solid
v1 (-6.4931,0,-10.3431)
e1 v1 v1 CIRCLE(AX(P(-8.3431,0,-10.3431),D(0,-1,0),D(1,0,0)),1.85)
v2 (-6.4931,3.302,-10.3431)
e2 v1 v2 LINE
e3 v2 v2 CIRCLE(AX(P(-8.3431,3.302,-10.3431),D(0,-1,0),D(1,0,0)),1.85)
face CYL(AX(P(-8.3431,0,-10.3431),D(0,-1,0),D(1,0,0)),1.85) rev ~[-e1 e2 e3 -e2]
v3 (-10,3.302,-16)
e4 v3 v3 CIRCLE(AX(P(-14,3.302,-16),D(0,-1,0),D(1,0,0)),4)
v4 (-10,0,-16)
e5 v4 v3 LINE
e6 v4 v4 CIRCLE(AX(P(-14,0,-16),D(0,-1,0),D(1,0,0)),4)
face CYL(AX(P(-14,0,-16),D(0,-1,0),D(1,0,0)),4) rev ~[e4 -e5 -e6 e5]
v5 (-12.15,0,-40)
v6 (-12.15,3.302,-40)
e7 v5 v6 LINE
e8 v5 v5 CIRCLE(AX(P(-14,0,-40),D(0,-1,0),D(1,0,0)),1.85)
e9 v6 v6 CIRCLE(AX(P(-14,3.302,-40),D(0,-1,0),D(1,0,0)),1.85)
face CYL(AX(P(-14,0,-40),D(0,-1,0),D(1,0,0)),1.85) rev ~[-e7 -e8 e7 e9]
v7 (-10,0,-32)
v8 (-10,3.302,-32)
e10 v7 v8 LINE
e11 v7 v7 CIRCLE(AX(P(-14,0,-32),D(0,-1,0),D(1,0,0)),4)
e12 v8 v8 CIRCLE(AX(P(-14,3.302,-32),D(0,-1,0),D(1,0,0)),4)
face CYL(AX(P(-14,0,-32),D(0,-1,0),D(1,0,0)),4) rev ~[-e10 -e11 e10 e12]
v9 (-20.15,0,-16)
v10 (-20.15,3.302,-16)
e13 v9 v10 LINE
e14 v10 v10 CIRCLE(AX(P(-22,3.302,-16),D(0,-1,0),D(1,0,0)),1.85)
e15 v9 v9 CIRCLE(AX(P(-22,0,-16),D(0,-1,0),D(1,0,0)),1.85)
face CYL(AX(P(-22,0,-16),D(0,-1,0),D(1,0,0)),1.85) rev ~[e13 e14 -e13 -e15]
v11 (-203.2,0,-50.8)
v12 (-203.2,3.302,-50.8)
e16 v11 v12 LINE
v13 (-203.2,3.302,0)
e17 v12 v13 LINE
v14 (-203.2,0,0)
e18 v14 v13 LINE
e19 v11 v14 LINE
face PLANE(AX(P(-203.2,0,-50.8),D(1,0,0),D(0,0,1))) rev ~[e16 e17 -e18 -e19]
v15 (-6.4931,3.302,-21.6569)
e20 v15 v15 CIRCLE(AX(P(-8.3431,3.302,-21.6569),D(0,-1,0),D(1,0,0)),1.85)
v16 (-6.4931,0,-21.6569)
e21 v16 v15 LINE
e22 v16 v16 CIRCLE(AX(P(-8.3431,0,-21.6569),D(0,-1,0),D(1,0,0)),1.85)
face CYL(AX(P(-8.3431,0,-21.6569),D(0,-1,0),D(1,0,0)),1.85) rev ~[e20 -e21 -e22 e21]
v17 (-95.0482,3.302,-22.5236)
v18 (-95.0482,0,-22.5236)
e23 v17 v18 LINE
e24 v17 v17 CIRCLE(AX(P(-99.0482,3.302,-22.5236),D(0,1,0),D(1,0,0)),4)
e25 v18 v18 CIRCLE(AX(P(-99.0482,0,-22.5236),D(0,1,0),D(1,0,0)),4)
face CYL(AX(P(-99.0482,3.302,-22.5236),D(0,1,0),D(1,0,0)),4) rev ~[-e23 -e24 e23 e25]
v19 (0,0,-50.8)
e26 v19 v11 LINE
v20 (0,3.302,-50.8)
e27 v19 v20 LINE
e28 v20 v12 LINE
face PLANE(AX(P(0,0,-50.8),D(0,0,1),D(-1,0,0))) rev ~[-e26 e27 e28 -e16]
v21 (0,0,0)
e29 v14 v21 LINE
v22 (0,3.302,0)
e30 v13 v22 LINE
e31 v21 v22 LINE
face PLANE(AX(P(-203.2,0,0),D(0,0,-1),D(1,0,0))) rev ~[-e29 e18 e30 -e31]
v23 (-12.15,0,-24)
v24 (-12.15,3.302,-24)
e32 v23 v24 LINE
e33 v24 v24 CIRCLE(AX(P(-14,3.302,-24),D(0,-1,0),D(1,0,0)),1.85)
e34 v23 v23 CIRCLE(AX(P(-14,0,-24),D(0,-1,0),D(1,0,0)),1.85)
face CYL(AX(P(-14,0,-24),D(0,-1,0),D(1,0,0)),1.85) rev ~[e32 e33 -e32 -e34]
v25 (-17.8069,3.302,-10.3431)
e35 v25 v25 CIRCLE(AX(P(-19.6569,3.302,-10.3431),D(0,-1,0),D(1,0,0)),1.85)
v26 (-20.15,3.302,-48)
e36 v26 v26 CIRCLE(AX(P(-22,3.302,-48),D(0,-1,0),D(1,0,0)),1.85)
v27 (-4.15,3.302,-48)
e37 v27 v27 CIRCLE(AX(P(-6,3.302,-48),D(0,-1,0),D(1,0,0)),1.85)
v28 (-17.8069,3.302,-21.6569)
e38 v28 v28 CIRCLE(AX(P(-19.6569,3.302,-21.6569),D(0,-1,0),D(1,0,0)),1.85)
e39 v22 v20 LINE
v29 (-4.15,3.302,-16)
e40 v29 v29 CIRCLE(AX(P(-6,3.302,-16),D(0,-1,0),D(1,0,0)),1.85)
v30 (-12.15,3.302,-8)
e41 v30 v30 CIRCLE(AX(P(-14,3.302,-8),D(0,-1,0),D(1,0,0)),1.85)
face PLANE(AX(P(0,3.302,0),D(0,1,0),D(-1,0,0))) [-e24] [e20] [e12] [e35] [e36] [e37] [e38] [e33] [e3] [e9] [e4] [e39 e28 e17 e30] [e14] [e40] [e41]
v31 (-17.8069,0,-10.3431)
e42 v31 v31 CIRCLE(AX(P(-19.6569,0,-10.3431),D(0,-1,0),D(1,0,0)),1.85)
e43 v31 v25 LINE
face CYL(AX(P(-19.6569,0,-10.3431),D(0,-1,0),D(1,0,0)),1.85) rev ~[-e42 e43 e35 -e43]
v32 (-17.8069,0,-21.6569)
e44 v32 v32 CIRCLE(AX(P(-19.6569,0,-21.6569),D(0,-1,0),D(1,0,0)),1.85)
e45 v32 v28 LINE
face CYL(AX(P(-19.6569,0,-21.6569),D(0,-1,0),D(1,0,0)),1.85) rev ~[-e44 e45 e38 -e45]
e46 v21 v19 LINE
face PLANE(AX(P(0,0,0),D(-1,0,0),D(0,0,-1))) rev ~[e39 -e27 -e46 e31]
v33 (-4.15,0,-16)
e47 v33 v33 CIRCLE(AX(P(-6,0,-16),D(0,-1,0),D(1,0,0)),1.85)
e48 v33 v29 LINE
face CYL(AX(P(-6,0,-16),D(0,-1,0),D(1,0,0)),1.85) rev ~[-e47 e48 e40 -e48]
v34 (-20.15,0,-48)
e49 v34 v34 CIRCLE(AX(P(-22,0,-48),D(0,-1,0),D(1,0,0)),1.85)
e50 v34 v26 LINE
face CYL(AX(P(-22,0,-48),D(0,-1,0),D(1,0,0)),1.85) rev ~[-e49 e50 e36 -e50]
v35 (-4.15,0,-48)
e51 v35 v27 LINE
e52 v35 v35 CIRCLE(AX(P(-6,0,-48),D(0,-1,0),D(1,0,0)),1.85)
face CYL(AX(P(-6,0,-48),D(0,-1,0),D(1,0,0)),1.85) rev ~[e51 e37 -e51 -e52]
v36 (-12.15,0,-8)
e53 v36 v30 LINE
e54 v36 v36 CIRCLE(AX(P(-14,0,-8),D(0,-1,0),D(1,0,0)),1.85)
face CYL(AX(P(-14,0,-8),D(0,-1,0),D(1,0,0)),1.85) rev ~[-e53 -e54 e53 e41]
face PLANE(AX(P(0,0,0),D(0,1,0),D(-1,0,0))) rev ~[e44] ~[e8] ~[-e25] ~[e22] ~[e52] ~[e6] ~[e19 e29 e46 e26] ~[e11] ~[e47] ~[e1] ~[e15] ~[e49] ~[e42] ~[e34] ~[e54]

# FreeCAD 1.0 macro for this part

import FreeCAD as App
import Part
import Sketcher
from FreeCAD import Vector
Q = App.Units.Quantity


def add_polygon(sketch, points):
    """Adds a closed chain of lines whose ends are joined by coincident constraints."""
    first, n = sketch.GeometryCount, len(points)
    for a, b in zip(points, points[1:] + points[:1]):
        sketch.addGeometry(Part.LineSegment(App.Vector(*a, 0), App.Vector(*b, 0)), False)
    for i in range(n):
        sketch.addConstraint(Sketcher.Constraint("Coincident", first + i, 2, first + (i + 1) % n, 1))

doc = App.newDocument("Part")
body = doc.addObject("PartDesign::Body", "Body")

# Sketch on XZ plane
sketch1 = doc.addObject("Sketcher::SketchObject", "Sketch")
body.addObject(sketch1)
sketch1.AttachmentSupport = (doc.XZ_Plane, [""])
sketch1.MapMode = "FlatFace"
add_polygon(sketch1, [(-203, 0), (0, 0), (0, -51), (-203, -51)])  # lines 0-3
sketch1.addConstraint(Sketcher.Constraint("Horizontal", 0))
sketch1.addConstraint(Sketcher.Constraint("Vertical", 1))
sketch1.addConstraint(Sketcher.Constraint("Horizontal", 2))
sketch1.addConstraint(Sketcher.Constraint("Vertical", 3))
sketch1.addConstraint(Sketcher.Constraint("Coincident", 0, 2, -1, 1))
sketch1.addConstraint(Sketcher.Constraint("DistanceX", 0, 1, 0, 2, Q("8 in")))
sketch1.addConstraint(Sketcher.Constraint("DistanceY", 1, 2, 1, 1, Q("2 in")))
pad1 = doc.addObject("PartDesign::Pad", "Pad")
body.addObject(pad1)
pad1.Profile = sketch1
pad1.Length = Q("0.13 in")
pad1.Reversed = True

# Sketch on XZ plane
sketch2 = doc.addObject("Sketcher::SketchObject", "Sketch001")
body.addObject(sketch2)
sketch2.AttachmentSupport = (doc.XZ_Plane, [""])
sketch2.MapMode = "FlatFace"
sketch2.addGeometry(Part.Circle(Vector(-14, -16, 0), Vector(0, 0, 1), 4), False)
sketch2.addGeometry(Part.Circle(Vector(-22, -16, 0), Vector(0, 0, 1), 1.9), False)
sketch2.addGeometry(Part.Circle(Vector(-6, -16, 0), Vector(0, 0, 1), 1.9), False)
sketch2.addGeometry(Part.Circle(Vector(-14, -24, 0), Vector(0, 0, 1), 1.9), False)
sketch2.addGeometry(Part.Circle(Vector(-14, -8, 0), Vector(0, 0, 1), 1.9), False)
sketch2.addGeometry(Part.Circle(Vector(-19.7, -21.7, 0), Vector(0, 0, 1), 1.9), False)
sketch2.addGeometry(Part.Circle(Vector(-19.7, -10.3, 0), Vector(0, 0, 1), 1.9), False)
sketch2.addGeometry(Part.Circle(Vector(-8.3, -10.3, 0), Vector(0, 0, 1), 1.9), False)
sketch2.addGeometry(Part.Circle(Vector(-8.3, -21.7, 0), Vector(0, 0, 1), 1.9), False)
sketch2.addGeometry(Part.Circle(Vector(-22, -48, 0), Vector(0, 0, 1), 1.9), False)
sketch2.addGeometry(Part.Circle(Vector(-6, -48, 0), Vector(0, 0, 1), 1.9), False)
sketch2.addGeometry(Part.Circle(Vector(-14, -40, 0), Vector(0, 0, 1), 1.9), False)
sketch2.addGeometry(Part.Circle(Vector(-14, -32, 0), Vector(0, 0, 1), 4), False)
sketch2.addConstraint(Sketcher.Constraint("Equal", 1, 2))
sketch2.addConstraint(Sketcher.Constraint("Equal", 2, 3))
sketch2.addConstraint(Sketcher.Constraint("Equal", 3, 4))
sketch2.addConstraint(Sketcher.Constraint("Equal", 4, 5))
sketch2.addConstraint(Sketcher.Constraint("Equal", 5, 6))
sketch2.addConstraint(Sketcher.Constraint("Equal", 6, 7))
sketch2.addConstraint(Sketcher.Constraint("Equal", 7, 8))
sketch2.addConstraint(Sketcher.Constraint("Equal", 8, 9))
sketch2.addConstraint(Sketcher.Constraint("Equal", 9, 10))
sketch2.addConstraint(Sketcher.Constraint("Equal", 10, 11))
sketch2.addConstraint(Sketcher.Constraint("Equal", 0, 12))
sketch2.addConstraint(Sketcher.Constraint("Horizontal", 0, 3, 1, 3))
sketch2.addConstraint(Sketcher.Constraint("Horizontal", 1, 3, 2, 3))
sketch2.addConstraint(Sketcher.Constraint("Horizontal", 6, 3, 7, 3))
sketch2.addConstraint(Sketcher.Constraint("Horizontal", 5, 3, 8, 3))
sketch2.addConstraint(Sketcher.Constraint("Horizontal", 9, 3, 10, 3))
sketch2.addConstraint(Sketcher.Constraint("Vertical", 0, 3, 3, 3))
sketch2.addConstraint(Sketcher.Constraint("Vertical", 3, 3, 4, 3))
sketch2.addConstraint(Sketcher.Constraint("Vertical", 5, 3, 6, 3))
sketch2.addConstraint(Sketcher.Constraint("Vertical", 7, 3, 8, 3))
sketch2.addConstraint(Sketcher.Constraint("Vertical", 1, 3, 9, 3))
sketch2.addConstraint(Sketcher.Constraint("Vertical", 2, 3, 10, 3))
sketch2.addConstraint(Sketcher.Constraint("Vertical", 4, 3, 11, 3))
sketch2.addConstraint(Sketcher.Constraint("Vertical", 11, 3, 12, 3))
sketch2.addConstraint(Sketcher.Constraint("Diameter", 0, 8.0))
sketch2.addConstraint(Sketcher.Constraint("Diameter", 1, 3.7))
sketch2.addConstraint(Sketcher.Constraint("DistanceX", 5, 3, -1, 1, Q("0.7739 in")))
sketch2.addConstraint(Sketcher.Constraint("DistanceY", 6, 3, -1, 1, Q("0.4072 in")))
sketch2.addConstraint(Sketcher.Constraint("DistanceY", 11, 3, -1, 1, Q("1.5748 in")))
sketch2.addConstraint(Sketcher.Constraint("DistanceY", 12, 3, 5, 3, Q("0.4072 in")))
sketch2.addConstraint(Sketcher.Constraint("DistanceX", 0, 3, -1, 1, 14.0))
sketch2.addConstraint(Sketcher.Constraint("DistanceY", 0, 3, -1, 1, 16.0))
sketch2.addConstraint(Sketcher.Constraint("DistanceX", 1, 3, -1, 1, 22.0))
sketch2.addConstraint(Sketcher.Constraint("DistanceX", 2, 3, -1, 1, 6.0))
sketch2.addConstraint(Sketcher.Constraint("DistanceY", 3, 3, -1, 1, 24.0))
sketch2.addConstraint(Sketcher.Constraint("DistanceY", 4, 3, -1, 1, 8.0))
sketch2.addConstraint(Sketcher.Constraint("DistanceY", 5, 3, -1, 1, 21.657))
sketch2.addConstraint(Sketcher.Constraint("DistanceX", 7, 3, -1, 1, 8.343))
sketch2.addConstraint(Sketcher.Constraint("DistanceY", 9, 3, -1, 1, 48.0))
pocket1 = doc.addObject("PartDesign::Pocket", "Pocket")
body.addObject(pocket1)
pocket1.Profile = sketch2
pocket1.Length = Q("0.8075 in")

# Sketch on XZ plane
sketch3 = doc.addObject("Sketcher::SketchObject", "Sketch002")
body.addObject(sketch3)
sketch3.AttachmentSupport = (doc.XZ_Plane, [""])
sketch3.MapMode = "FlatFace"
sketch3.AttachmentOffset = App.Placement(Vector(0, 0, -0.13 * 25.4), App.Rotation())
sketch3.addGeometry(Part.Circle(Vector(-99, -22.5, 0), Vector(0, 0, 1), 4), False)
sketch3.addConstraint(Sketcher.Constraint("Diameter", 0, 8.0))
sketch3.addConstraint(Sketcher.Constraint("DistanceX", 0, 3, -1, 1, 99.0482))
sketch3.addConstraint(Sketcher.Constraint("DistanceY", 0, 3, -1, 1, 22.5236))
pocket2 = doc.addObject("PartDesign::Pocket", "Pocket001")
body.addObject(pocket2)
pocket2.Profile = sketch3
pocket2.Length = Q("0.5625 in")
pocket2.Reversed = True

doc.recompute()
